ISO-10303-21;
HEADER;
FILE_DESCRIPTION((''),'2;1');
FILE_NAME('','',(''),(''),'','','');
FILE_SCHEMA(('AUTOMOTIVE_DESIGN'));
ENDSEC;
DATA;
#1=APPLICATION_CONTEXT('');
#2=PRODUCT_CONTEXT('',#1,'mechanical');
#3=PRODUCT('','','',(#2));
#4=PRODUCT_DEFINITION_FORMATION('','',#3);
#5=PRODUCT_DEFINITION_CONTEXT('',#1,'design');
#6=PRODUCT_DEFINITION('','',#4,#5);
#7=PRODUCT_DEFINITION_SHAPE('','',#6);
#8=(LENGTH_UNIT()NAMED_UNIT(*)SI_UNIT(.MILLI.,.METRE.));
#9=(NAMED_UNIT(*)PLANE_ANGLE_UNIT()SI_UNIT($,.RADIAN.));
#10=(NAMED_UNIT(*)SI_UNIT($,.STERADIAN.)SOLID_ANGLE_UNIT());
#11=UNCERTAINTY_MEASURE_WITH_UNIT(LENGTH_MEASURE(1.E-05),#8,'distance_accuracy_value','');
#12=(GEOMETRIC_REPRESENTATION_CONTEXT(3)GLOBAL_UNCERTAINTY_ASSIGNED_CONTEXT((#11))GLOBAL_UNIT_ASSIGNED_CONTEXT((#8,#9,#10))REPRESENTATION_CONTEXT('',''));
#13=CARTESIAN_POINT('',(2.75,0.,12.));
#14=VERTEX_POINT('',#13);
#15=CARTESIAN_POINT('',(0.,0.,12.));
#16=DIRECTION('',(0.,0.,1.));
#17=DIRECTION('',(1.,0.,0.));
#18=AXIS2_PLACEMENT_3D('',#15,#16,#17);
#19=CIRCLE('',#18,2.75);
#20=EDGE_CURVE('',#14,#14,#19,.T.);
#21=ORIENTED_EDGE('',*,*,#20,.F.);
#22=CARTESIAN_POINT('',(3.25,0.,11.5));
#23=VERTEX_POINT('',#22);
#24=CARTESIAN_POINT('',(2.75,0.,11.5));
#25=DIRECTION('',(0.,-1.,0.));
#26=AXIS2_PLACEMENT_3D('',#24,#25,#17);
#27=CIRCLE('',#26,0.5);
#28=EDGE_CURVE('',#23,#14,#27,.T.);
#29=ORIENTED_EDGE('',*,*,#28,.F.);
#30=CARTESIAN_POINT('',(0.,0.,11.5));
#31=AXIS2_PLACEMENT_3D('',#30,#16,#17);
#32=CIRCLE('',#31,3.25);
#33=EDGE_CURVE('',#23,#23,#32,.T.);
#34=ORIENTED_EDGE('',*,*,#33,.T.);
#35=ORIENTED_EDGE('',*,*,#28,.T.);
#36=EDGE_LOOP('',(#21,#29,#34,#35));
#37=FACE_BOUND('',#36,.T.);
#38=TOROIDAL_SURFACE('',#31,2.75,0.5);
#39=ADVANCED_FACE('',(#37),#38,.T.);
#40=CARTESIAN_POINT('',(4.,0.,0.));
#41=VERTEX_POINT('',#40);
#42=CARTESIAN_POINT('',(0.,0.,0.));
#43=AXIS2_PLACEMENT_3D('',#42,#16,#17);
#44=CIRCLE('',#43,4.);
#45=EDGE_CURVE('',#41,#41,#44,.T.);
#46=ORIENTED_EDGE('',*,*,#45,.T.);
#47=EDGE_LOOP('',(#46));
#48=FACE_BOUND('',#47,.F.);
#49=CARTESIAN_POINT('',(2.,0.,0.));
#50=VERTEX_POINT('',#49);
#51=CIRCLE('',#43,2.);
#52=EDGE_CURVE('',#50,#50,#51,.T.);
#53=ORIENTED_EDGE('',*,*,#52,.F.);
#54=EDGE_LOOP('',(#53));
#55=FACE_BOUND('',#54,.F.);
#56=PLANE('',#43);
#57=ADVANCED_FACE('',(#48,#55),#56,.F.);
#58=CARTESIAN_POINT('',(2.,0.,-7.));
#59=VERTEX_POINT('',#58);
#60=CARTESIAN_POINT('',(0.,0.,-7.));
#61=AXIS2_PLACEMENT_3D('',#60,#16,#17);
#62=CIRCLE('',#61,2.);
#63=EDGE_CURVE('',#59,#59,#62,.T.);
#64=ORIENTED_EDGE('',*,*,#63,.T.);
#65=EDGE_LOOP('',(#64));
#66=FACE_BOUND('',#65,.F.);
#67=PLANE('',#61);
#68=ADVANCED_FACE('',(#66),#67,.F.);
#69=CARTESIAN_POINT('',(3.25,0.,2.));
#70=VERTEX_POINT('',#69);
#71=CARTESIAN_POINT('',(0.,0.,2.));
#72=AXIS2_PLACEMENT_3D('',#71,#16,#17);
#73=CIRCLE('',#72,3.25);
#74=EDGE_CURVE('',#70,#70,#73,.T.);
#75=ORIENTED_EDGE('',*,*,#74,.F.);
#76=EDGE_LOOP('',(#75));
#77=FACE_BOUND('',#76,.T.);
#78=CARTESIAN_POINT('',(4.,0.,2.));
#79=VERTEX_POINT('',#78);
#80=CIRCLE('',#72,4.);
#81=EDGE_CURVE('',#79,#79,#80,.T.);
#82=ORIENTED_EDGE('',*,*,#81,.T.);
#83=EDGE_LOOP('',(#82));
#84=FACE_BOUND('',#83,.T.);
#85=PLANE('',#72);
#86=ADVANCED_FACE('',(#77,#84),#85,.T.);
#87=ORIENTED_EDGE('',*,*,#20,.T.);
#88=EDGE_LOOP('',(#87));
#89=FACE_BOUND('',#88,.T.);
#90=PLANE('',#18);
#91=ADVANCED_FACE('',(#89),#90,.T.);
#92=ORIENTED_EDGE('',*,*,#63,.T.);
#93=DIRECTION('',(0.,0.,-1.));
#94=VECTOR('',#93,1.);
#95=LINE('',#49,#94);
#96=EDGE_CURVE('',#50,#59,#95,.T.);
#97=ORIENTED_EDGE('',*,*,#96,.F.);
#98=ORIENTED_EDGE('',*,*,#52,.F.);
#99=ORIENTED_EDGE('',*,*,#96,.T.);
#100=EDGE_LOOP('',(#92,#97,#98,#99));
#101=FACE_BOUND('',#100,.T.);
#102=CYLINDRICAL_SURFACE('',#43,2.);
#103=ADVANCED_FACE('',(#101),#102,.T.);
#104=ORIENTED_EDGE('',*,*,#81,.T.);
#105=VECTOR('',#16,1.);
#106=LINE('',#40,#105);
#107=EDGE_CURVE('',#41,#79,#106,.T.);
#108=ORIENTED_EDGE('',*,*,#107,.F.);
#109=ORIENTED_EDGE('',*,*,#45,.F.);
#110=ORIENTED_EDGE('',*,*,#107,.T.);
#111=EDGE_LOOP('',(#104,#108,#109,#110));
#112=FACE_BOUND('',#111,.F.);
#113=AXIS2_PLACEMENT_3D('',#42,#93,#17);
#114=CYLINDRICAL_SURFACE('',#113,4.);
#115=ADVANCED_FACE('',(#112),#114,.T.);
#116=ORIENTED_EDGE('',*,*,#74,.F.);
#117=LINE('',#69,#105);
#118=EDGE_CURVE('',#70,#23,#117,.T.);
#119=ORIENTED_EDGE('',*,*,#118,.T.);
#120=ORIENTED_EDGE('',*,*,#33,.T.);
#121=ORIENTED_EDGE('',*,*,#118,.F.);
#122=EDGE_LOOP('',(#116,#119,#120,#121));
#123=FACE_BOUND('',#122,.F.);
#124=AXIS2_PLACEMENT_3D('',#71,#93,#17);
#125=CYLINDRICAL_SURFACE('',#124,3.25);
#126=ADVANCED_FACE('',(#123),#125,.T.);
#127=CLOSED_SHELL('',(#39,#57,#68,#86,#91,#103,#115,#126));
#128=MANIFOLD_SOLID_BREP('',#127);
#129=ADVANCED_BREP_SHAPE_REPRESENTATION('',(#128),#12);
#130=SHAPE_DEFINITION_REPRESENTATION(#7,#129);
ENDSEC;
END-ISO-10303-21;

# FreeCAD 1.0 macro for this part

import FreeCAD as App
import Part
import Sketcher
Q = App.Units.Quantity


def edges_at(feature, points):
    """Names of the edges that pass closest to the given points."""
    edges = feature.Shape.Edges
    near = lambda p: min(range(len(edges)), key=lambda i: edges[i].distToShape(Part.Vertex(*p))[0])
    return sorted({f"Edge{near(p) + 1}" for p in points})

doc = App.newDocument("Part")
body = doc.addObject("PartDesign::Body", "Body")

# Sketch on XY plane
sketch1 = body.newObject("Sketcher::SketchObject", "Sketch")
sketch1.AttachmentSupport = (doc.getObject("XY_Plane"), [""])
sketch1.MapMode = "FlatFace"
sketch1.addGeometry(Part.Circle(App.Vector(0, 0, 0), App.Vector(0, 0, 1), 4), False)
sketch1.addConstraint([
    Sketcher.Constraint("Coincident", 0, 3, -1, 1),
    Sketcher.Constraint("Diameter", 0, Q("8 mm")),
])
pad1 = body.newObject("PartDesign::Pad", "Pad")
pad1.Profile = sketch1
pad1.Length = 2

# Sketch on XY plane
sketch2 = body.newObject("Sketcher::SketchObject", "Sketch001")
sketch2.AttachmentSupport = (doc.getObject("XY_Plane"), [""])
sketch2.MapMode = "FlatFace"
sketch2.AttachmentOffset = App.Placement(App.Vector(0, 0, 2), App.Rotation())
sketch2.addGeometry(Part.Circle(App.Vector(0, 0, 0), App.Vector(0, 0, 1), 3.2), False)
sketch2.addConstraint([
    Sketcher.Constraint("Coincident", 0, 3, -1, 1),
    Sketcher.Constraint("Diameter", 0, Q("6.5 mm")),
])
pad2 = body.newObject("PartDesign::Pad", "Pad001")
pad2.Profile = sketch2
pad2.Length = 10

# Sketch on XY plane
sketch3 = body.newObject("Sketcher::SketchObject", "Sketch002")
sketch3.AttachmentSupport = (doc.getObject("XY_Plane"), [""])
sketch3.MapMode = "FlatFace"
sketch3.addGeometry(Part.Circle(App.Vector(0, 0, 0), App.Vector(0, 0, 1), 2), False)
sketch3.addConstraint([
    Sketcher.Constraint("Coincident", 0, 3, -1, 1),
    Sketcher.Constraint("Diameter", 0, Q("4 mm")),
])
pad3 = body.newObject("PartDesign::Pad", "Pad002")
pad3.Profile = sketch3
pad3.Length = 7
pad3.Reversed = True
doc.recompute()

fillet = body.newObject("PartDesign::Fillet", "Fillet")
fillet.Base = (pad3, edges_at(pad3, [(-3.25, 0, 12)]))
fillet.Radius = 0.5

doc.recompute()
